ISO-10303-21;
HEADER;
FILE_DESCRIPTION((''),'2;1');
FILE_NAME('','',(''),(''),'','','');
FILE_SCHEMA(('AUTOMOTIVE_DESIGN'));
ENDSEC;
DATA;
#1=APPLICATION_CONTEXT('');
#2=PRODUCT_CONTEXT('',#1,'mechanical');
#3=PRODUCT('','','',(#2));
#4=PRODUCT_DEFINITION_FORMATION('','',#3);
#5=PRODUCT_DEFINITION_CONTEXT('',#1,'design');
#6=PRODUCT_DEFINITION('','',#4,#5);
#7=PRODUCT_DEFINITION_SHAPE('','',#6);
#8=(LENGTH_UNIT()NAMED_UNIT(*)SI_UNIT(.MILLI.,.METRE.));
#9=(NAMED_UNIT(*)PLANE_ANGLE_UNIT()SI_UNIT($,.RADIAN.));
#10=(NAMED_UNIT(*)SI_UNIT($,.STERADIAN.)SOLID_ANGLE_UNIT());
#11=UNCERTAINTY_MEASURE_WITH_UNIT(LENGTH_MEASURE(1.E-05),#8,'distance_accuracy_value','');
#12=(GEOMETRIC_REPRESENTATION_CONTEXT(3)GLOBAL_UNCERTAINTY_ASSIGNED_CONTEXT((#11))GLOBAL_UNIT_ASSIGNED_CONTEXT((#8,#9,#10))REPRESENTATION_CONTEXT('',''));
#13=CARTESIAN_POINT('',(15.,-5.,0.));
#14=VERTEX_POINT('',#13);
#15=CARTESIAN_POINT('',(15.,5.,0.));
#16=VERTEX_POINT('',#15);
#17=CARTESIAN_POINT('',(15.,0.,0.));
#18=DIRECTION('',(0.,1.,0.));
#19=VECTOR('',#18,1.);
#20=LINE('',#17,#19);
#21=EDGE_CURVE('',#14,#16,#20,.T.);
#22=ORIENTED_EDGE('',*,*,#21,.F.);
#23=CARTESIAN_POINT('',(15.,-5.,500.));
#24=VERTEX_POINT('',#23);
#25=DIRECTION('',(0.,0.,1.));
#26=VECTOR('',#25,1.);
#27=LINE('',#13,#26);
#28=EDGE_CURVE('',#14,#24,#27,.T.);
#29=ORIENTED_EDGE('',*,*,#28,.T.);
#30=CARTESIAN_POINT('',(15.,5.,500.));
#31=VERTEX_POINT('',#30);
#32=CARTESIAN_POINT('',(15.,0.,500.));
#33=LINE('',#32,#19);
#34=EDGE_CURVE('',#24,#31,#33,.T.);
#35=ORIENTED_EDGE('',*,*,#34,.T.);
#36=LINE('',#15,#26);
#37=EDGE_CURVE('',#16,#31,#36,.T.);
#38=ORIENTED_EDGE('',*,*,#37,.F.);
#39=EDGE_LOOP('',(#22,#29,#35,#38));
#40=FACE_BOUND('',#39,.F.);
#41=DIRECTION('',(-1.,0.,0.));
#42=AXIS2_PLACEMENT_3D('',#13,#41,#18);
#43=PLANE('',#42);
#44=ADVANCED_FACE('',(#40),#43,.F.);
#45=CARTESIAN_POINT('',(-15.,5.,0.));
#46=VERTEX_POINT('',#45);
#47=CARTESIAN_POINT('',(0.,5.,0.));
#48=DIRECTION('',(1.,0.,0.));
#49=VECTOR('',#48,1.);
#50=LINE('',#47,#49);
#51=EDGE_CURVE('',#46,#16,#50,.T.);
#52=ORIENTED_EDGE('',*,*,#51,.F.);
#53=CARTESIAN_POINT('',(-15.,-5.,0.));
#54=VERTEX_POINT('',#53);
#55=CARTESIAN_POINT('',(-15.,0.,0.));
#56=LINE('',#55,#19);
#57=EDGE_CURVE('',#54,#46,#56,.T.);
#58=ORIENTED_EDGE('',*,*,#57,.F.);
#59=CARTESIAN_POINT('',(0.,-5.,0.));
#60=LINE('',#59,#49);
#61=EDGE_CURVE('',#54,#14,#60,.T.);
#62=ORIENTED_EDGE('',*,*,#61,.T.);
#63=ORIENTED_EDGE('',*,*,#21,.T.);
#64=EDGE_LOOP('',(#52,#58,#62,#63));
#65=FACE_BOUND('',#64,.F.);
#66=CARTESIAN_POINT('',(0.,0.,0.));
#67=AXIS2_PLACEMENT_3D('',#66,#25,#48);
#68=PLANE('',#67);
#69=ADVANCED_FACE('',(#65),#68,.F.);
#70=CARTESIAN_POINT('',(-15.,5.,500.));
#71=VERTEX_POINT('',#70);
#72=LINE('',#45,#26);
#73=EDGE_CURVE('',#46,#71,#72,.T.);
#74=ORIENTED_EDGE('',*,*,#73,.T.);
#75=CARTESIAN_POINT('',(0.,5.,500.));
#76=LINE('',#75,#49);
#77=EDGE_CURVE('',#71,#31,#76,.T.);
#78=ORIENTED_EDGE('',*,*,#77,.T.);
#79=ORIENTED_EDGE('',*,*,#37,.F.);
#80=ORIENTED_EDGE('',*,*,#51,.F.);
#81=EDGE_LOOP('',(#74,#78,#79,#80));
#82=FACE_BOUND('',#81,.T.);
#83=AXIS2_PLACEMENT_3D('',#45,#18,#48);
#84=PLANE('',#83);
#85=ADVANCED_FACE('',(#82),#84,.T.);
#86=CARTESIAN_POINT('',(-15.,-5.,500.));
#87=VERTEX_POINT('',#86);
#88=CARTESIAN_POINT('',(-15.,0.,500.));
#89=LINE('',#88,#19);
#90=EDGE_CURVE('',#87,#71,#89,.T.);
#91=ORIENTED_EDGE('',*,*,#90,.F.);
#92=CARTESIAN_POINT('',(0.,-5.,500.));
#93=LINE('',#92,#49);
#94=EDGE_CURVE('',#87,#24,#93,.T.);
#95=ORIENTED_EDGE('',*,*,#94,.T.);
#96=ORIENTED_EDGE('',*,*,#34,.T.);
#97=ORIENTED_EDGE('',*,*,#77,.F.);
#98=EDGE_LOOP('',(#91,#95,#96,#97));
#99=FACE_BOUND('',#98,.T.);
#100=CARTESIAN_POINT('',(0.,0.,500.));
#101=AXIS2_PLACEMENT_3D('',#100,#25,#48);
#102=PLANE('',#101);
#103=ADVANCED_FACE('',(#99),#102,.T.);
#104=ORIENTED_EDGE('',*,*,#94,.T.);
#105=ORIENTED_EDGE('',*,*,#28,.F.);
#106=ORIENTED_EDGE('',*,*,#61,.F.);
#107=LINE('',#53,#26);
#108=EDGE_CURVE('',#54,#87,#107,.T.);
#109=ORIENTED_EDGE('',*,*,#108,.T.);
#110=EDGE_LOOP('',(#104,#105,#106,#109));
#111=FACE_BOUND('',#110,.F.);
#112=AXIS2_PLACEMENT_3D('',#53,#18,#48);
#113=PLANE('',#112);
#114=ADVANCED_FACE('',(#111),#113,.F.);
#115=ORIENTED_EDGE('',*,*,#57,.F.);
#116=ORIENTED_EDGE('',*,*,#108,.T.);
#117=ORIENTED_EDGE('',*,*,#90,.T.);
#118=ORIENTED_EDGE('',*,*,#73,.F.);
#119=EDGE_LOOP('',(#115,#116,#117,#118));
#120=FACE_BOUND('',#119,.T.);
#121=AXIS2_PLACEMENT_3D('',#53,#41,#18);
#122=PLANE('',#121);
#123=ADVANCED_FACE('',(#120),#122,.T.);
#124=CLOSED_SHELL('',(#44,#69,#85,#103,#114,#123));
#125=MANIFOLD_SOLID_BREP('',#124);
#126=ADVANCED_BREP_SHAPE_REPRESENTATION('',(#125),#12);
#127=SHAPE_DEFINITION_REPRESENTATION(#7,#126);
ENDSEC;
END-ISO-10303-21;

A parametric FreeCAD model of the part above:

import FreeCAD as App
import Part
import Sketcher
from FreeCAD import Vector

doc = App.newDocument("Part")
body = doc.addObject("PartDesign::Body", "Body")

sketch1 = body.newObject("Sketcher::SketchObject", "Sketch")
sketch1.AttachmentSupport = (doc.getObject("XY_Plane"), [""])
sketch1.MapMode = "FlatFace"
sketch1.addGeometry(Part.LineSegment(Vector(-15, 5, 0), Vector(-15, -5, 0)), False)
sketch1.addGeometry(Part.LineSegment(Vector(-15, -5, 0), Vector(15, -5, 0)), False)
sketch1.addGeometry(Part.LineSegment(Vector(15, -5, 0), Vector(15, 5, 0)), False)
sketch1.addGeometry(Part.LineSegment(Vector(15, 5, 0), Vector(-15, 5, 0)), False)
sketch1.addConstraint(Sketcher.Constraint("Coincident", 0, 2, 1, 1))
sketch1.addConstraint(Sketcher.Constraint("Coincident", 1, 2, 2, 1))
sketch1.addConstraint(Sketcher.Constraint("Coincident", 2, 2, 3, 1))
sketch1.addConstraint(Sketcher.Constraint("Coincident", 3, 2, 0, 1))
sketch1.addConstraint(Sketcher.Constraint("Vertical", 0))
sketch1.addConstraint(Sketcher.Constraint("Horizontal", 1))
sketch1.addConstraint(Sketcher.Constraint("Vertical", 2))
sketch1.addConstraint(Sketcher.Constraint("Horizontal", 3))
sketch1.addConstraint(Sketcher.Constraint("Symmetric", 0, 2, 2, 2, -1, 1))
sketch1.addConstraint(Sketcher.Constraint("DistanceX", 1, 1, 1, 2, 30.0))
sketch1.addConstraint(Sketcher.Constraint("DistanceY", 0, 2, 0, 1, 10.0))
pad1 = body.newObject("PartDesign::Pad", "Pad")
pad1.Profile = sketch1
pad1.Length = 500

doc.recompute()
